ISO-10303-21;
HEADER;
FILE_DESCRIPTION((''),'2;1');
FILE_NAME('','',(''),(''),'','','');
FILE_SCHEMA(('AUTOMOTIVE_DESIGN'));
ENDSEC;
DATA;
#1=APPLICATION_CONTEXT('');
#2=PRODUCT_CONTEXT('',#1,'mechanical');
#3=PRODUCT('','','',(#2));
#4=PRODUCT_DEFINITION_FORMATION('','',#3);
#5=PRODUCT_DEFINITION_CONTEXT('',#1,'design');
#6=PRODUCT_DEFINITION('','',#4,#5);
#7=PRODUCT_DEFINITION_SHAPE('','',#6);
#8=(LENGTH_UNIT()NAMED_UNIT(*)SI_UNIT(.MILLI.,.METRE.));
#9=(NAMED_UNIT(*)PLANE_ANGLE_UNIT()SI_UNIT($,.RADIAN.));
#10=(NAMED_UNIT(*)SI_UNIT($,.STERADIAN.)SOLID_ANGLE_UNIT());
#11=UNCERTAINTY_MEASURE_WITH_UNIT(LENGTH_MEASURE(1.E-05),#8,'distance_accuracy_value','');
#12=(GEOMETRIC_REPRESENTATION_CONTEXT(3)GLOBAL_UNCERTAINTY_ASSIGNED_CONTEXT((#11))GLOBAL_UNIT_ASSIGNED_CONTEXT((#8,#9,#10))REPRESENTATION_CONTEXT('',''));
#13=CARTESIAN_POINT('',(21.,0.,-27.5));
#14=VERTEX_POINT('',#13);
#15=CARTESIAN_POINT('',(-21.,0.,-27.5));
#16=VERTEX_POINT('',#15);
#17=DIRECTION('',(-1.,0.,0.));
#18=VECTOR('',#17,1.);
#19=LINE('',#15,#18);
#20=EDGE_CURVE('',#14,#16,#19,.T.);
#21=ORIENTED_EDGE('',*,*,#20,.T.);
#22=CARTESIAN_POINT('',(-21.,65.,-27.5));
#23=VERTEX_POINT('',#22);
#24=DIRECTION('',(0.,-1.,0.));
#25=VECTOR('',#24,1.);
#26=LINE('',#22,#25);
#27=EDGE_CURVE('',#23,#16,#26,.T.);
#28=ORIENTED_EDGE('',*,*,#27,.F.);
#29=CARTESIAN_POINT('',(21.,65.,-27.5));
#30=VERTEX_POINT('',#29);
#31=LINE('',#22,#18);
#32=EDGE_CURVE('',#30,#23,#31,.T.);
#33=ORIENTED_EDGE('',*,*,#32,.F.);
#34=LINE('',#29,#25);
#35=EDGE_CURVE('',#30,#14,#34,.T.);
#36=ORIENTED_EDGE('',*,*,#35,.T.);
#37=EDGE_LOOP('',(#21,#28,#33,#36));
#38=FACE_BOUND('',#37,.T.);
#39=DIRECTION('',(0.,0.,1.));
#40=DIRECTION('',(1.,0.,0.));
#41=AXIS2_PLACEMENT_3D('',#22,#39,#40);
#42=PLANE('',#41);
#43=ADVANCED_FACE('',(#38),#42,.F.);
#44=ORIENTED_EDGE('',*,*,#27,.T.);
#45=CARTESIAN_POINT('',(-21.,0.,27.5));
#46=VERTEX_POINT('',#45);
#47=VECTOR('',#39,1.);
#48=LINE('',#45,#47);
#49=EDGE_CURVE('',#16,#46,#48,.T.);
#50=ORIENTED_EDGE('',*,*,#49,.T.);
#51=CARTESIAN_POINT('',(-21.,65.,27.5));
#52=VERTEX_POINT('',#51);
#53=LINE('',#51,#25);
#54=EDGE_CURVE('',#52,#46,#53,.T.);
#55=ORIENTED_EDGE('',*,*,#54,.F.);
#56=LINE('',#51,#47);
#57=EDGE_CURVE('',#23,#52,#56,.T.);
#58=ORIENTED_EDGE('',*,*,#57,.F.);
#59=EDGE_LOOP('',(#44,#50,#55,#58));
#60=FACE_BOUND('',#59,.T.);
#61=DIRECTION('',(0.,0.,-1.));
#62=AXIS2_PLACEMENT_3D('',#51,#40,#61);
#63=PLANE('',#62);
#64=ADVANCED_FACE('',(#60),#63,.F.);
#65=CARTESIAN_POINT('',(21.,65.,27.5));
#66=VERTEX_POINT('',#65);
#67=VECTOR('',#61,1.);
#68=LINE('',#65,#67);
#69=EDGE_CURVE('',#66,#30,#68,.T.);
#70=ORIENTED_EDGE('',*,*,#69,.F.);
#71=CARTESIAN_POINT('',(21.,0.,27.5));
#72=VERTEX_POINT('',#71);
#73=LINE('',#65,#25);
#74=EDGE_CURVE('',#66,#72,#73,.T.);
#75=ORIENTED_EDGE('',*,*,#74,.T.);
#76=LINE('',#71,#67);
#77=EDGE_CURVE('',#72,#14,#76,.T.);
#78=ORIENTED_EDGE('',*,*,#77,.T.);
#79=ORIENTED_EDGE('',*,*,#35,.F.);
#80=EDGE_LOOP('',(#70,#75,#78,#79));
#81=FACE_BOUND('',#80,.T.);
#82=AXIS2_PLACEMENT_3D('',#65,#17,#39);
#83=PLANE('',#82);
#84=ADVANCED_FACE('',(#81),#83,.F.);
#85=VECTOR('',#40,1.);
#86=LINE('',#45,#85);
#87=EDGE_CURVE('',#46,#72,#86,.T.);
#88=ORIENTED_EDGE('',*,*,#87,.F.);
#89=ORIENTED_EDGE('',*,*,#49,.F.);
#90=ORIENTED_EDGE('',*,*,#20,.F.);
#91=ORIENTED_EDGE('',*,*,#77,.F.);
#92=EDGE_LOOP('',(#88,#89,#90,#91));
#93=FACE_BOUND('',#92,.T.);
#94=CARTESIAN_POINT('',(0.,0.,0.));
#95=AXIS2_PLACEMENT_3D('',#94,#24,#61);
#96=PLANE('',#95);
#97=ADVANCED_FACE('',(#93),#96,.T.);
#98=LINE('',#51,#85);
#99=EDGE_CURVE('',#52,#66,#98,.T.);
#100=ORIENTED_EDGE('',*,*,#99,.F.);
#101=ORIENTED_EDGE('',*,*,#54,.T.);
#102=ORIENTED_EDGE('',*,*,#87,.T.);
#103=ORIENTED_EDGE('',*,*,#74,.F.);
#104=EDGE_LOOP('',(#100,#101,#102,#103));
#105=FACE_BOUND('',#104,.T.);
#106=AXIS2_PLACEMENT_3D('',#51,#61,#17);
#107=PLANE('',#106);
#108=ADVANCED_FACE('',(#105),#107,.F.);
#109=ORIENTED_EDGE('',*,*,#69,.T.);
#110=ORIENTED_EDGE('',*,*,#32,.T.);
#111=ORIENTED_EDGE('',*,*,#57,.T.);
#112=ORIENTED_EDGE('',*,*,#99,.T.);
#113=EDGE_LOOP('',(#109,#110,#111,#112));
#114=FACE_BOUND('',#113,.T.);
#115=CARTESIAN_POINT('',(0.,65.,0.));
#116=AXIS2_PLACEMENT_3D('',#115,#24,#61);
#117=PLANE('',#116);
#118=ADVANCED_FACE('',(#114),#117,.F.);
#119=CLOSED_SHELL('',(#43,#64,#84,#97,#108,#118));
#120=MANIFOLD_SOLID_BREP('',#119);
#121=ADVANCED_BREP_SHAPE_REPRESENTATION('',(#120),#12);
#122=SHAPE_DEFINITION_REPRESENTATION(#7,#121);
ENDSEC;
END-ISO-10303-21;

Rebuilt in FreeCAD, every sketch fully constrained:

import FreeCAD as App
import Part
import Sketcher

doc = App.newDocument("Part")
body = doc.addObject("PartDesign::Body", "Body")

# Sketch on XZ plane
sketch1 = body.newObject("Sketcher::SketchObject", "Sketch")
sketch1.AttachmentSupport = (doc.getObject("XZ_Plane"), [""])
sketch1.MapMode = "FlatFace"
sketch1.addGeometry([
    Part.LineSegment(App.Vector(-21, -27.5, 0), App.Vector(-21, 27.5, 0)),
    Part.LineSegment(App.Vector(-21, 27.5, 0), App.Vector(21, 27.5, 0)),
    Part.LineSegment(App.Vector(21, 27.5, 0), App.Vector(21, -27.5, 0)),
    Part.LineSegment(App.Vector(21, -27.5, 0), App.Vector(-21, -27.5, 0)),
], False)
sketch1.addConstraint([
    Sketcher.Constraint("Coincident", 0, 2, 1, 1),
    Sketcher.Constraint("Coincident", 1, 2, 2, 1),
    Sketcher.Constraint("Coincident", 2, 2, 3, 1),
    Sketcher.Constraint("Coincident", 3, 2, 0, 1),
    Sketcher.Constraint("Vertical", 0),
    Sketcher.Constraint("Horizontal", 1),
    Sketcher.Constraint("Vertical", 2),
    Sketcher.Constraint("Horizontal", 3),
    Sketcher.Constraint("Symmetric", 0, 2, 2, 2, -1, 1),
    Sketcher.Constraint("DistanceX", 1, 1, 1, 2, 42.0),
    Sketcher.Constraint("DistanceY", 0, 1, 0, 2, 55.0),
])
pad1 = body.newObject("PartDesign::Pad", "Pad")
pad1.Profile = sketch1
pad1.Length = 65
pad1.Reversed = True

doc.recompute()
